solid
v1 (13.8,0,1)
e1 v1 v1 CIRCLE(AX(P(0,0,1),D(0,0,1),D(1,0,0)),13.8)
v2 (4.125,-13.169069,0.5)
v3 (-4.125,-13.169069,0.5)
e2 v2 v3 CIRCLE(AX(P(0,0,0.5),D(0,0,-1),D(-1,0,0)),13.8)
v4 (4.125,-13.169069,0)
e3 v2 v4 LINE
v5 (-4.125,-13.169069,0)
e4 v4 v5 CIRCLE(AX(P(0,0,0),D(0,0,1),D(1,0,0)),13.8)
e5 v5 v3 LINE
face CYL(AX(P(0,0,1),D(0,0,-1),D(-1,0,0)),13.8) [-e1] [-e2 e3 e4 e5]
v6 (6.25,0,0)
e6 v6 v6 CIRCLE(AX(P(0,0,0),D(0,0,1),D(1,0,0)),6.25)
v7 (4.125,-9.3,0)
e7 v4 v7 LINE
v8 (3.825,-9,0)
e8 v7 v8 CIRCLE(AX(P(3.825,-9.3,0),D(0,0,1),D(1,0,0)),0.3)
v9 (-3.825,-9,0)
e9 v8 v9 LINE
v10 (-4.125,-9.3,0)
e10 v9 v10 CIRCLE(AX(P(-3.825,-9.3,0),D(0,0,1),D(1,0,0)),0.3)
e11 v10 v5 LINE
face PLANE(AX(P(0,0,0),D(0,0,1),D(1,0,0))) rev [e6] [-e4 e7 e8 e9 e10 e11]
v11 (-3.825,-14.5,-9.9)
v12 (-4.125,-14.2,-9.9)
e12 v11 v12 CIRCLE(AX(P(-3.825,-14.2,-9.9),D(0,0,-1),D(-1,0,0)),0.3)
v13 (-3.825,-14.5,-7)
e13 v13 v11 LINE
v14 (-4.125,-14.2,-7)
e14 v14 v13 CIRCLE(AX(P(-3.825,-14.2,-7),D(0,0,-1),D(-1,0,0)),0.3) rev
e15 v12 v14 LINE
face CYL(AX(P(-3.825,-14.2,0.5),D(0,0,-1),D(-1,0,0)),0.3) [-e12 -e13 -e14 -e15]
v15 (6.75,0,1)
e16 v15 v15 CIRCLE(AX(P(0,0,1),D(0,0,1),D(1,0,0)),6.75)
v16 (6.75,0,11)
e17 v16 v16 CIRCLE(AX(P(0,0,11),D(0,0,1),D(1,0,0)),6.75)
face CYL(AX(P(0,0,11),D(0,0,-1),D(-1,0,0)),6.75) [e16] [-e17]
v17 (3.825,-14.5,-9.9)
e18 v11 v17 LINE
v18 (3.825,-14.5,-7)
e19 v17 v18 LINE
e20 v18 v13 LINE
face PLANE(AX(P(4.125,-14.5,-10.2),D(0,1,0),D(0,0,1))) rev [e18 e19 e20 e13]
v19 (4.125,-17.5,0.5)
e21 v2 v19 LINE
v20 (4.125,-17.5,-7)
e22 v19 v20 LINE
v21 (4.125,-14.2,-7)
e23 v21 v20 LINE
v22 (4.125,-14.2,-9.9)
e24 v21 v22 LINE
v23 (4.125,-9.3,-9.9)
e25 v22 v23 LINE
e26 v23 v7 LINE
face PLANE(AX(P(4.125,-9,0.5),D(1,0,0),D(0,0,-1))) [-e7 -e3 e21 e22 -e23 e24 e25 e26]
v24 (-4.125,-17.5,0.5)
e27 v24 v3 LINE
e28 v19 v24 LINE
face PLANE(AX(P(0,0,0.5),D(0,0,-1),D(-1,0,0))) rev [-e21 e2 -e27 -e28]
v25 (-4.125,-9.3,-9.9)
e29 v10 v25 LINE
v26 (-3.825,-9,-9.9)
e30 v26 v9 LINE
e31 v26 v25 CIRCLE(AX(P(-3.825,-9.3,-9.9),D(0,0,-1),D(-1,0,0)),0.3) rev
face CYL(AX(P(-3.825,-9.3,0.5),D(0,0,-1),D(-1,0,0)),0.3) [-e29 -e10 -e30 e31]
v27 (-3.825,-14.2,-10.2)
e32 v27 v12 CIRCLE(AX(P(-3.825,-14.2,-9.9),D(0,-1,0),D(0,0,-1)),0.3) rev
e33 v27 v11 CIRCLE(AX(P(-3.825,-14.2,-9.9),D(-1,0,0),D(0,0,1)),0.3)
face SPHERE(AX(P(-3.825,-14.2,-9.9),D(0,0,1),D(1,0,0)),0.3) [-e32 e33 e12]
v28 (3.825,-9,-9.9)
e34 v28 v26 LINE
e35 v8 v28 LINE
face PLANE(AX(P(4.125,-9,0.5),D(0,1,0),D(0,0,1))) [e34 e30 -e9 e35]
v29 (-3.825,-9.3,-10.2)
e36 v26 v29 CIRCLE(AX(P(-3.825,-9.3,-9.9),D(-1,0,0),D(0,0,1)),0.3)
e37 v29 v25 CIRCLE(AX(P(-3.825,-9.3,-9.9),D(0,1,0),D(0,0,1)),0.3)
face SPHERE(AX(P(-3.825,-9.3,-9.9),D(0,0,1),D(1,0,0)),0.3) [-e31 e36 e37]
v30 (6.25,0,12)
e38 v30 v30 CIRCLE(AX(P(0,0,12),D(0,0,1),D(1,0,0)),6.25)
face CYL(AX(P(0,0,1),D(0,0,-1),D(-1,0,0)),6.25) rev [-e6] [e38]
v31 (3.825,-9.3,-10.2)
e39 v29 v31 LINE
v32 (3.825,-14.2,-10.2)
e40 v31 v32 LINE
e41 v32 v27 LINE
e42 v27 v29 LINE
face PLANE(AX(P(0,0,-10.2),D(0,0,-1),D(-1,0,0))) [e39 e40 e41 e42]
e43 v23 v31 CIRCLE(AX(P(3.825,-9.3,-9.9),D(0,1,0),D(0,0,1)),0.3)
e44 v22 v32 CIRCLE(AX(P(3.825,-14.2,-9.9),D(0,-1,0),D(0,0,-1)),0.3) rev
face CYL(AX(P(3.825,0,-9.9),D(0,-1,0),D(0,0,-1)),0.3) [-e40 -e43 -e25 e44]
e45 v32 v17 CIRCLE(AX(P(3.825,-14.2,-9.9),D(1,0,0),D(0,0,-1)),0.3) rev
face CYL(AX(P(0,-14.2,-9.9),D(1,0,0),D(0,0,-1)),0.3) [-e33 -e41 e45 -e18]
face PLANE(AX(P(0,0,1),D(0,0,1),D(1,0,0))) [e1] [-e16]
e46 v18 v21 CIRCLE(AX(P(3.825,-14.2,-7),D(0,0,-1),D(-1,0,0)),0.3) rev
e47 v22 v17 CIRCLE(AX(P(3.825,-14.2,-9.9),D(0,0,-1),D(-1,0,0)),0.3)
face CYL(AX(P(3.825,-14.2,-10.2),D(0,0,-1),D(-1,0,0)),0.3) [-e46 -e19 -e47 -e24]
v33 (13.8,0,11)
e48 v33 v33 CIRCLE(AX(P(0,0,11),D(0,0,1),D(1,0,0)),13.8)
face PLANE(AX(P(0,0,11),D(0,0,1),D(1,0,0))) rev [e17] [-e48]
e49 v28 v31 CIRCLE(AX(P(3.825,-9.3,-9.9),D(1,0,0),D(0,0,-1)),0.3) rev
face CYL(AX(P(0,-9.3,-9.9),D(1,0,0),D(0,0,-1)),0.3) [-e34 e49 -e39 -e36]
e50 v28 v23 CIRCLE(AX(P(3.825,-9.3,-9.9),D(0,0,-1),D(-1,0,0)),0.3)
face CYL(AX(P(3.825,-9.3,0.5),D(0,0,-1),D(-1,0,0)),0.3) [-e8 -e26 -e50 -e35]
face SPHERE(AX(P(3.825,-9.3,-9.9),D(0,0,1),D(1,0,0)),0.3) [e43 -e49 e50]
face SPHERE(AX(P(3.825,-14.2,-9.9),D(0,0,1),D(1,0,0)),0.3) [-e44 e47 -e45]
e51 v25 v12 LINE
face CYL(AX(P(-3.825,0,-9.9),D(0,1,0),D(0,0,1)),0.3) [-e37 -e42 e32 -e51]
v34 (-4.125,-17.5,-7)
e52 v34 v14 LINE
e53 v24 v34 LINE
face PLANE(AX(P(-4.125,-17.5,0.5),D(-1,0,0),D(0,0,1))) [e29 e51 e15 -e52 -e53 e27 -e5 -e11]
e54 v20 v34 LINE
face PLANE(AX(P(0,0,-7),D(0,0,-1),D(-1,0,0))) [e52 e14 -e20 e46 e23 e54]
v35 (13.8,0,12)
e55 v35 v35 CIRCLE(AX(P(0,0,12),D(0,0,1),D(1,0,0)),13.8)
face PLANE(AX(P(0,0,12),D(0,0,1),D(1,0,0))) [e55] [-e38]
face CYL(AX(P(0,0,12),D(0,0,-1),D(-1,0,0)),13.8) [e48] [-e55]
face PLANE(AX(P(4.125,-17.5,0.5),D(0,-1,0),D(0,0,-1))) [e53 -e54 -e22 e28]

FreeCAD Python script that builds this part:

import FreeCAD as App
import Part
import Sketcher


def edges_at(feature, points):
    """Names of the edges that pass closest to the given points."""
    edges = feature.Shape.Edges
    near = lambda p: min(range(len(edges)), key=lambda i: edges[i].distToShape(Part.Vertex(*p))[0])
    return sorted({f"Edge{near(p) + 1}" for p in points})


def add_polygon(sketch, points):
    """Adds a closed chain of lines whose ends are joined by coincident constraints."""
    first, n = sketch.GeometryCount, len(points)
    for a, b in zip(points, points[1:] + points[:1]):
        sketch.addGeometry(Part.LineSegment(App.Vector(*a, 0), App.Vector(*b, 0)), False)
    for i in range(n):
        sketch.addConstraint(Sketcher.Constraint("Coincident", first + i, 2, first + (i + 1) % n, 1))

doc = App.newDocument("Part")
body = doc.addObject("PartDesign::Body", "Body")

sketch1 = doc.addObject("Sketcher::SketchObject", "Sketch")
body.addObject(sketch1)
sketch1.AttachmentSupport = (doc.XY_Plane, [""])
sketch1.MapMode = "FlatFace"
sketch1.addGeometry(Part.Circle(App.Vector(0, 0, 0), App.Vector(0, 0, 1), 14), False)
sketch1.addGeometry(Part.Circle(App.Vector(0, 0, 0), App.Vector(0, 0, 1), 6), False)
sketch1.addConstraint(Sketcher.Constraint("Coincident", 0, 3, -1, 1))
sketch1.addConstraint(Sketcher.Constraint("Coincident", 1, 3, -1, 1))
sketch1.addConstraint(Sketcher.Constraint("Diameter", 0, 27.6))
sketch1.addConstraint(Sketcher.Constraint("Diameter", 1, 12.5))
pad1 = doc.addObject("PartDesign::Pad", "Pad")
body.addObject(pad1)
pad1.Profile = sketch1
pad1.Length = 1

sketch2 = doc.addObject("Sketcher::SketchObject", "Sketch001")
body.addObject(sketch2)
sketch2.AttachmentSupport = (doc.XY_Plane, [""])
sketch2.MapMode = "FlatFace"
sketch2.AttachmentOffset = App.Placement(App.Vector(0, 0, 1), App.Rotation())
sketch2.addGeometry(Part.Circle(App.Vector(0, 0, 0), App.Vector(0, 0, 1), 7), False)
sketch2.addGeometry(Part.Circle(App.Vector(0, 0, 0), App.Vector(0, 0, 1), 6), False)
sketch2.addConstraint(Sketcher.Constraint("Coincident", 0, 3, -1, 1))
sketch2.addConstraint(Sketcher.Constraint("Coincident", 1, 3, -1, 1))
sketch2.addConstraint(Sketcher.Constraint("Diameter", 0, 13.5))
sketch2.addConstraint(Sketcher.Constraint("Diameter", 1, 12.5))
pad2 = doc.addObject("PartDesign::Pad", "Pad001")
body.addObject(pad2)
pad2.Profile = sketch2
pad2.Length = 10

sketch3 = doc.addObject("Sketcher::SketchObject", "Sketch002")
body.addObject(sketch3)
sketch3.AttachmentSupport = (doc.XY_Plane, [""])
sketch3.MapMode = "FlatFace"
sketch3.AttachmentOffset = App.Placement(App.Vector(0, 0, 11), App.Rotation())
sketch3.addGeometry(Part.Circle(App.Vector(0, 0, 0), App.Vector(0, 0, 1), 14), False)
sketch3.addGeometry(Part.Circle(App.Vector(0, 0, 0), App.Vector(0, 0, 1), 6), False)
sketch3.addConstraint(Sketcher.Constraint("Coincident", 0, 3, -1, 1))
sketch3.addConstraint(Sketcher.Constraint("Coincident", 1, 3, -1, 1))
sketch3.addConstraint(Sketcher.Constraint("Diameter", 0, 27.6))
sketch3.addConstraint(Sketcher.Constraint("Diameter", 1, 12.5))
pad3 = doc.addObject("PartDesign::Pad", "Pad002")
body.addObject(pad3)
pad3.Profile = sketch3
pad3.Length = 1

sketch4 = doc.addObject("Sketcher::SketchObject", "Sketch003")
body.addObject(sketch4)
sketch4.AttachmentSupport = (doc.XY_Plane, [""])
sketch4.MapMode = "FlatFace"
add_polygon(sketch4, [(4, -9), (4, -18), (-4, -18), (-4, -9)])
sketch4.addConstraint(Sketcher.Constraint("Vertical", 0))
sketch4.addConstraint(Sketcher.Constraint("Horizontal", 1))
sketch4.addConstraint(Sketcher.Constraint("Vertical", 2))
sketch4.addConstraint(Sketcher.Constraint("Horizontal", 3))
sketch4.addConstraint(Sketcher.Constraint("DistanceY", 0, 2, 0, 1, 8.5))
sketch4.addConstraint(Sketcher.Constraint("DistanceY", 2, 2, -1, 1, 9.0))
sketch4.addConstraint(Sketcher.Constraint("DistanceX", 1, 2, 1, 1, 8.25))
sketch4.addConstraint(Sketcher.Constraint("DistanceX", -1, 1, 0, 2, 4.125))
pad4 = doc.addObject("PartDesign::Pad", "Pad003")
body.addObject(pad4)
pad4.Profile = sketch4
pad4.Type = "TwoLengths"
pad4.Length = 7
pad4.Length2 = 0.5
pad4.Reversed = True

sketch5 = doc.addObject("Sketcher::SketchObject", "Sketch004")
body.addObject(sketch5)
sketch5.AttachmentSupport = (doc.XY_Plane, [""])
sketch5.MapMode = "FlatFace"
sketch5.AttachmentOffset = App.Placement(App.Vector(0, 0, -7), App.Rotation())
add_polygon(sketch5, [(4, -9), (4, -14), (-4, -14), (-4, -9)])
sketch5.addConstraint(Sketcher.Constraint("Vertical", 0))
sketch5.addConstraint(Sketcher.Constraint("Horizontal", 1))
sketch5.addConstraint(Sketcher.Constraint("Vertical", 2))
sketch5.addConstraint(Sketcher.Constraint("Horizontal", 3))
sketch5.addConstraint(Sketcher.Constraint("DistanceY", 0, 2, 0, 1, 5.5))
sketch5.addConstraint(Sketcher.Constraint("DistanceY", 2, 2, -1, 1, 9.0))
sketch5.addConstraint(Sketcher.Constraint("DistanceX", 1, 2, 1, 1, 8.25))
sketch5.addConstraint(Sketcher.Constraint("DistanceX", -1, 1, 0, 2, 4.125))
pad5 = doc.addObject("PartDesign::Pad", "Pad004")
body.addObject(pad5)
pad5.Profile = sketch5
pad5.Length = 3.2
pad5.Reversed = True
doc.recompute()

fillet = doc.addObject("PartDesign::Fillet", "Fillet")
body.addObject(fillet)
fillet.Base = (pad5, edges_at(pad5, [
    (4.125, -9, -5.1),
    (-4.125, -9, -5.1),
    (4.125, -14.5, -8.6),
    (-4.125, -14.5, -8.6),
    (4.125, -11.75, -10.2),
    (0, -14.5, -10.2),
    (-4.125, -11.75, -10.2),
    (0, -9, -10.2),
]))
fillet.Radius = 0.3

doc.recompute()
